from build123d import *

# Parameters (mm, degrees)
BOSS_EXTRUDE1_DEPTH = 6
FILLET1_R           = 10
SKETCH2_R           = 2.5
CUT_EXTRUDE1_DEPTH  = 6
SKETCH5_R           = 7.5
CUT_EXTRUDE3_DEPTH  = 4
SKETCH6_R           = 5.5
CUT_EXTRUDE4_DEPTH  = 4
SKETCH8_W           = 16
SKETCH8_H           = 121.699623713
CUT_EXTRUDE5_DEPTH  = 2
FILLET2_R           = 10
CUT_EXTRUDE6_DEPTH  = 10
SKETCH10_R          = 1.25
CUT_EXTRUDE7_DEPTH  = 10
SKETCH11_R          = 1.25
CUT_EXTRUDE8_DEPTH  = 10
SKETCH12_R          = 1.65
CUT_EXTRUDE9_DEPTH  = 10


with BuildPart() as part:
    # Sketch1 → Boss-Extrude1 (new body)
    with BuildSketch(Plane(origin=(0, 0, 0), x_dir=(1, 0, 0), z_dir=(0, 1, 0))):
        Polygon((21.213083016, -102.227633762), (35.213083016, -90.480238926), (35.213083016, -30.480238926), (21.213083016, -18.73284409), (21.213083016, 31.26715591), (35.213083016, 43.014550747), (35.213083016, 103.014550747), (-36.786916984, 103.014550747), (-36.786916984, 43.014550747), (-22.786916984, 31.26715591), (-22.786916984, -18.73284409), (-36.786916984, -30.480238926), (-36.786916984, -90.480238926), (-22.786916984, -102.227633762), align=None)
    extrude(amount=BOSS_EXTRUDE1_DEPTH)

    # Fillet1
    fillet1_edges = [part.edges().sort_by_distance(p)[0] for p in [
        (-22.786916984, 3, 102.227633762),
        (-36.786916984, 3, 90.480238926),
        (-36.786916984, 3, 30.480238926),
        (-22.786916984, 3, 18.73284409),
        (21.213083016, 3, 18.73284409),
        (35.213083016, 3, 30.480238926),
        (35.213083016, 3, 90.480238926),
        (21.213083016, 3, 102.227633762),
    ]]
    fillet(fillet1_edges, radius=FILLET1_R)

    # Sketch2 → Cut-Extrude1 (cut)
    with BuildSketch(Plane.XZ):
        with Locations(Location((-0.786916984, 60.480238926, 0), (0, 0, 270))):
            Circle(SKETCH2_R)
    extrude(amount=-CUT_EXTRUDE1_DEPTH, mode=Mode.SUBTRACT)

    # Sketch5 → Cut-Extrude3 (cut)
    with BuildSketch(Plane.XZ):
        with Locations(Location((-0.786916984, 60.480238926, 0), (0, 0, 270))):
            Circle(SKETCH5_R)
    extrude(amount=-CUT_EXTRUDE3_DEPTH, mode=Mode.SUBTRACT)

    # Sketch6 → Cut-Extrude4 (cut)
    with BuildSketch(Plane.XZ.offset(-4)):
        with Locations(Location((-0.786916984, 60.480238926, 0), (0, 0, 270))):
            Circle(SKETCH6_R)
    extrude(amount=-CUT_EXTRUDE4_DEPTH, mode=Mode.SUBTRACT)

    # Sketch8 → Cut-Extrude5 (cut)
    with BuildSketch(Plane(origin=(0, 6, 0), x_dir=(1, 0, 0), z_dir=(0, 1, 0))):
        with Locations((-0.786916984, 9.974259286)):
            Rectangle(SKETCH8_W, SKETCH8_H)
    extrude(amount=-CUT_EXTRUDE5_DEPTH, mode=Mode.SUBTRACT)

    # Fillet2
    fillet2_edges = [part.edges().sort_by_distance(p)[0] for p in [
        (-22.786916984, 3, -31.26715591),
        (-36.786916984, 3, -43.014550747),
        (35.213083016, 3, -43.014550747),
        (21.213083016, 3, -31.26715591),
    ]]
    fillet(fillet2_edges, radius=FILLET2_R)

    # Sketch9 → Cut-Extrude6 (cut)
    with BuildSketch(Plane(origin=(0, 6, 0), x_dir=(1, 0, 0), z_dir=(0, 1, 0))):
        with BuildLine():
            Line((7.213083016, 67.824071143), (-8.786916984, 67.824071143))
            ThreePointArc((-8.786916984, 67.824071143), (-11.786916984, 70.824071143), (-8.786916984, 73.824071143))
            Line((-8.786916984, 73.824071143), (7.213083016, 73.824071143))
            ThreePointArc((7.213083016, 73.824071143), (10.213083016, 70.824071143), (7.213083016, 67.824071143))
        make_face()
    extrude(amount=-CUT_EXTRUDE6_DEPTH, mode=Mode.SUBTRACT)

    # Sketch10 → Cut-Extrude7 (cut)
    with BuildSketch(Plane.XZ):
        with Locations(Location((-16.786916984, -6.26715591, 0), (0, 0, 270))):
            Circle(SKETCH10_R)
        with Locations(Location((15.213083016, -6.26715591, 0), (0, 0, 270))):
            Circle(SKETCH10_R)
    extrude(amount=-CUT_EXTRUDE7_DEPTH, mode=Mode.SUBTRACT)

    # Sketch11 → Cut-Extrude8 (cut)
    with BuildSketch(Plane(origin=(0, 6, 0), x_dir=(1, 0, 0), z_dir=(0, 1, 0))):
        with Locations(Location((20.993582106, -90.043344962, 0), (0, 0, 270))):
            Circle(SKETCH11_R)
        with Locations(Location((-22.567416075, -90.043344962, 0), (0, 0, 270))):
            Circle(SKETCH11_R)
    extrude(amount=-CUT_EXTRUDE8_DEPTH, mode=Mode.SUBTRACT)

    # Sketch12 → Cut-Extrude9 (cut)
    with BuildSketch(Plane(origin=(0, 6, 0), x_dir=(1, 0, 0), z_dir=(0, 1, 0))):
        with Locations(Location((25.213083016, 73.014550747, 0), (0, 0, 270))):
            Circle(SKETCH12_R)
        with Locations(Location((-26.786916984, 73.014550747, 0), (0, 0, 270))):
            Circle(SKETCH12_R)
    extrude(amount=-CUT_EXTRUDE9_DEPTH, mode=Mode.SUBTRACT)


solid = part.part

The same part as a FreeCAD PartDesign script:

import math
import FreeCAD as App
import Part
import Sketcher
from FreeCAD import Vector
Q = App.Units.Quantity


def edges_at(feature, points):
    """Names of the edges that pass closest to the given points."""
    edges = feature.Shape.Edges
    near = lambda p: min(range(len(edges)), key=lambda i: edges[i].distToShape(Part.Vertex(*p))[0])
    return sorted({f"Edge{near(p) + 1}" for p in points})

doc = App.newDocument("Part")
body = doc.addObject("PartDesign::Body", "Body")

# Sketch on XZ plane
sketch1 = body.newObject("Sketcher::SketchObject", "Sketch")
sketch1.AttachmentSupport = (doc.getObject("XZ_Plane"), [""])
sketch1.MapMode = "FlatFace"
sketch1.addGeometry([
    Part.LineSegment(Vector(21, 102, 0), Vector(35, 90, 0)),  # 0
    Part.LineSegment(Vector(35, 90, 0), Vector(35, 30, 0)),  # 1
    Part.LineSegment(Vector(35, 30, 0), Vector(21, 19, 0)),  # 2
    Part.LineSegment(Vector(21, 19, 0), Vector(21, -31, 0)),  # 3
    Part.LineSegment(Vector(21, -31, 0), Vector(35, -43, 0)),  # 4
    Part.LineSegment(Vector(35, -43, 0), Vector(35, -103, 0)),  # 5
    Part.LineSegment(Vector(35, -103, 0), Vector(-37, -103, 0)),  # 6
    Part.LineSegment(Vector(-37, -103, 0), Vector(-37, -43, 0)),  # 7
    Part.LineSegment(Vector(-37, -43, 0), Vector(-23, -31, 0)),  # 8
    Part.LineSegment(Vector(-23, -31, 0), Vector(-23, 19, 0)),  # 9
    Part.LineSegment(Vector(-23, 19, 0), Vector(-37, 30, 0)),  # 10
    Part.LineSegment(Vector(-37, 30, 0), Vector(-37, 90, 0)),  # 11
    Part.LineSegment(Vector(-37, 90, 0), Vector(-23, 102, 0)),  # 12
    Part.LineSegment(Vector(-23, 102, 0), Vector(21, 102, 0)),  # 13
], False)
sketch1.addConstraint([
    Sketcher.Constraint("Coincident", 0, 2, 1, 1),
    Sketcher.Constraint("Coincident", 1, 2, 2, 1),
    Sketcher.Constraint("Coincident", 2, 2, 3, 1),
    Sketcher.Constraint("Coincident", 3, 2, 4, 1),
    Sketcher.Constraint("Coincident", 4, 2, 5, 1),
    Sketcher.Constraint("Coincident", 5, 2, 6, 1),
    Sketcher.Constraint("Coincident", 6, 2, 7, 1),
    Sketcher.Constraint("Coincident", 7, 2, 8, 1),
    Sketcher.Constraint("Coincident", 8, 2, 9, 1),
    Sketcher.Constraint("Coincident", 9, 2, 10, 1),
    Sketcher.Constraint("Coincident", 10, 2, 11, 1),
    Sketcher.Constraint("Coincident", 11, 2, 12, 1),
    Sketcher.Constraint("Coincident", 12, 2, 13, 1),
    Sketcher.Constraint("Coincident", 13, 2, 0, 1),
    Sketcher.Constraint("Vertical", 1),
    Sketcher.Constraint("Vertical", 3),
    Sketcher.Constraint("Vertical", 5),
    Sketcher.Constraint("Horizontal", 6),
    Sketcher.Constraint("Vertical", 7),
    Sketcher.Constraint("Vertical", 9),
    Sketcher.Constraint("Vertical", 11),
    Sketcher.Constraint("Horizontal", 13),
    Sketcher.Constraint("Parallel", 0, 4),
    Sketcher.Constraint("Parallel", 2, 8),
    Sketcher.Constraint("Parallel", 4, 10),
    Sketcher.Constraint("Parallel", 8, 12),
    Sketcher.Constraint("Horizontal", 4, 2, 7, 2),
    Sketcher.Constraint("Horizontal", 3, 2, 8, 2),
    Sketcher.Constraint("Horizontal", 2, 2, 9, 2),
    Sketcher.Constraint("Horizontal", 1, 2, 10, 2),
    Sketcher.Constraint("Horizontal", 0, 2, 11, 2),
    Sketcher.Constraint("Vertical", 1, 2, 4, 2),
    Sketcher.Constraint("Vertical", 7, 2, 10, 2),
    Sketcher.Constraint("Vertical", 9, 2, 12, 2),
    Sketcher.Constraint("Equal", 1, 5),
    Sketcher.Constraint("DistanceX", 6, 2, 6, 1, 72.0),
    Sketcher.Constraint("DistanceX", 13, 1, 13, 2, 44.0),
    Sketcher.Constraint("DistanceY", 1, 2, 1, 1, 60.0),
    Sketcher.Constraint("DistanceY", 3, 2, 3, 1, 50.0),
    Sketcher.Constraint("Angle", 0, Q("-40 deg")),
    Sketcher.Constraint("DistanceY", -1, 1, 0, 2, 90.480239),
    Sketcher.Constraint("DistanceX", -1, 1, 0, 2, 35.213083),
])
pad1 = body.newObject("PartDesign::Pad", "Pad")
pad1.Profile = sketch1
pad1.Length = 6
pad1.Reversed = True
doc.recompute()

fillet = body.newObject("PartDesign::Fillet", "Fillet")
fillet.Base = (pad1, edges_at(pad1, [
    (-22.787, 3, 102.228),
    (-36.787, 3, 90.48),
    (-36.787, 3, 30.48),
    (-22.787, 3, 18.733),
    (21.213, 3, 18.733),
    (35.213, 3, 30.48),
    (35.213, 3, 90.48),
    (21.213, 3, 102.228),
]))
fillet.Radius = 10

# Sketch on XZ plane
sketch2 = body.newObject("Sketcher::SketchObject", "Sketch001")
sketch2.AttachmentSupport = (doc.getObject("XZ_Plane"), [""])
sketch2.MapMode = "FlatFace"
sketch2.addGeometry(Part.Circle(Vector(-0.8, 60.5, 0), Vector(0, 0, 1), 2.5), False)
sketch2.addConstraint([
    Sketcher.Constraint("Diameter", 0, 5.0),
    Sketcher.Constraint("DistanceY", -1, 1, 0, 3, 60.480239),
    Sketcher.Constraint("DistanceX", 0, 3, -1, 1, 0.786917),
])
pocket1 = body.newObject("PartDesign::Pocket", "Pocket")
pocket1.Profile = sketch2
pocket1.Length = 6

# Sketch on XZ plane
sketch3 = body.newObject("Sketcher::SketchObject", "Sketch002")
sketch3.AttachmentSupport = (doc.getObject("XZ_Plane"), [""])
sketch3.MapMode = "FlatFace"
sketch3.addGeometry(Part.Circle(Vector(-1, 60, 0), Vector(0, 0, 1), 8), False)
sketch3.addConstraint([
    Sketcher.Constraint("Diameter", 0, 15.0),
    Sketcher.Constraint("DistanceY", -1, 1, 0, 3, 60.480239),
    Sketcher.Constraint("DistanceX", 0, 3, -1, 1, 0.786917),
])
pocket2 = body.newObject("PartDesign::Pocket", "Pocket001")
pocket2.Profile = sketch3
pocket2.Length = 4

# Sketch on XZ plane
sketch4 = body.newObject("Sketcher::SketchObject", "Sketch003")
sketch4.AttachmentSupport = (doc.getObject("XZ_Plane"), [""])
sketch4.MapMode = "FlatFace"
sketch4.AttachmentOffset = App.Placement(Vector(0, 0, -4), App.Rotation())
sketch4.addGeometry(Part.Circle(Vector(-1, 60, 0), Vector(0, 0, 1), 6), False)
sketch4.addConstraint([
    Sketcher.Constraint("Diameter", 0, 11.0),
    Sketcher.Constraint("DistanceY", -1, 1, 0, 3, 60.480239),
    Sketcher.Constraint("DistanceX", 0, 3, -1, 1, 0.786917),
])
pocket3 = body.newObject("PartDesign::Pocket", "Pocket002")
pocket3.Profile = sketch4
pocket3.Length = 4

# Sketch on XZ plane
sketch5 = body.newObject("Sketcher::SketchObject", "Sketch004")
sketch5.AttachmentSupport = (doc.getObject("XZ_Plane"), [""])
sketch5.MapMode = "FlatFace"
sketch5.AttachmentOffset = App.Placement(Vector(0, 0, -6), App.Rotation())
sketch5.addGeometry([
    Part.LineSegment(Vector(-9, -71, 0), Vector(-9, 51, 0)),
    Part.LineSegment(Vector(-9, 51, 0), Vector(7, 51, 0)),
    Part.LineSegment(Vector(7, 51, 0), Vector(7, -71, 0)),
    Part.LineSegment(Vector(7, -71, 0), Vector(-9, -71, 0)),
], False)
sketch5.addConstraint([
    Sketcher.Constraint("Coincident", 0, 2, 1, 1),
    Sketcher.Constraint("Coincident", 1, 2, 2, 1),
    Sketcher.Constraint("Coincident", 2, 2, 3, 1),
    Sketcher.Constraint("Coincident", 3, 2, 0, 1),
    Sketcher.Constraint("Vertical", 0),
    Sketcher.Constraint("Horizontal", 1),
    Sketcher.Constraint("Vertical", 2),
    Sketcher.Constraint("Horizontal", 3),
    Sketcher.Constraint("DistanceX", 1, 1, 1, 2, 16.0),
    Sketcher.Constraint("DistanceY", 0, 1, 0, 2, 121.699624),
    Sketcher.Constraint("DistanceY", 2, 2, -1, 1, 70.824071),
    Sketcher.Constraint("DistanceX", 0, 2, -1, 1, 8.786917),
])
pocket4 = body.newObject("PartDesign::Pocket", "Pocket003")
pocket4.Profile = sketch5
pocket4.Length = 2
pocket4.Reversed = True
doc.recompute()

fillet2 = body.newObject("PartDesign::Fillet", "Fillet001")
fillet2.Base = (pocket4, edges_at(pocket4, [
    (-22.787, 3, -31.267),
    (-36.787, 3, -43.015),
    (35.213, 3, -43.015),
    (21.213, 3, -31.267),
]))
fillet2.Radius = 10

# Sketch on XZ plane
sketch6 = body.newObject("Sketcher::SketchObject", "Sketch005")
sketch6.AttachmentSupport = (doc.getObject("XZ_Plane"), [""])
sketch6.MapMode = "FlatFace"
sketch6.AttachmentOffset = App.Placement(Vector(0, 0, -6), App.Rotation())
sketch6.addGeometry([
    Part.LineSegment(Vector(-8.8, -67.8, 0), Vector(7.2, -67.8, 0)),
    Part.ArcOfCircle(Part.Circle(Vector(7.2, -70.8, 0), Vector(0, 0, 1), 3), math.radians(-90), math.radians(90)),
    Part.LineSegment(Vector(7.2, -73.8, 0), Vector(-8.8, -73.8, 0)),
    Part.ArcOfCircle(Part.Circle(Vector(-8.8, -70.8, 0), Vector(0, 0, 1), 3), math.radians(90), math.radians(270)),
], False)
sketch6.addConstraint([
    Sketcher.Constraint("Tangent", 0, 2, 1, 2),
    Sketcher.Constraint("Tangent", 1, 1, 2, 1),
    Sketcher.Constraint("Tangent", 2, 2, 3, 2),
    Sketcher.Constraint("Tangent", 3, 1, 0, 1),
    Sketcher.Constraint("Horizontal", 0),
    Sketcher.Constraint("Horizontal", 2),
    Sketcher.Constraint("Radius", 1, 3.0),
    Sketcher.Constraint("DistanceX", 0, 1, 0, 2, 16.0),
    Sketcher.Constraint("DistanceY", 1, 3, -1, 1, 70.824071),
    Sketcher.Constraint("DistanceX", -1, 1, 1, 3, 7.213083),
])
pocket5 = body.newObject("PartDesign::Pocket", "Pocket004")
pocket5.Profile = sketch6
pocket5.Length = 10
pocket5.Reversed = True

# Sketch on XZ plane
sketch7 = body.newObject("Sketcher::SketchObject", "Sketch006")
sketch7.AttachmentSupport = (doc.getObject("XZ_Plane"), [""])
sketch7.MapMode = "FlatFace"
sketch7.addGeometry([
    Part.Circle(Vector(-16.8, -6.3, 0), Vector(0, 0, 1), 1.2),
    Part.Circle(Vector(15.2, -6.3, 0), Vector(0, 0, 1), 1.2),
], False)
sketch7.addConstraint([
    Sketcher.Constraint("Equal", 0, 1),
    Sketcher.Constraint("Horizontal", 0, 3, 1, 3),
    Sketcher.Constraint("Diameter", 0, 2.5),
    Sketcher.Constraint("DistanceX", 0, 3, 1, 3, 32.0),
    Sketcher.Constraint("DistanceX", 0, 3, -1, 1, 16.786917),
    Sketcher.Constraint("DistanceY", 0, 3, -1, 1, 6.267156),
])
pocket6 = body.newObject("PartDesign::Pocket", "Pocket005")
pocket6.Profile = sketch7
pocket6.Length = 10

# Sketch on XZ plane
sketch8 = body.newObject("Sketcher::SketchObject", "Sketch007")
sketch8.AttachmentSupport = (doc.getObject("XZ_Plane"), [""])
sketch8.MapMode = "FlatFace"
sketch8.AttachmentOffset = App.Placement(Vector(0, 0, -6), App.Rotation())
sketch8.addGeometry([
    Part.Circle(Vector(21, 90, 0), Vector(0, 0, 1), 1.2),
    Part.Circle(Vector(-22.6, 90, 0), Vector(0, 0, 1), 1.2),
], False)
sketch8.addConstraint([
    Sketcher.Constraint("Equal", 0, 1),
    Sketcher.Constraint("Horizontal", 0, 3, 1, 3),
    Sketcher.Constraint("Diameter", 0, 2.5),
    Sketcher.Constraint("DistanceX", 1, 3, 0, 3, 43.560998),
    Sketcher.Constraint("DistanceX", -1, 1, 0, 3, 20.993582),
    Sketcher.Constraint("DistanceY", -1, 1, 0, 3, 90.043345),
])
pocket7 = body.newObject("PartDesign::Pocket", "Pocket006")
pocket7.Profile = sketch8
pocket7.Length = 10
pocket7.Reversed = True

# Sketch on XZ plane
sketch9 = body.newObject("Sketcher::SketchObject", "Sketch008")
sketch9.AttachmentSupport = (doc.getObject("XZ_Plane"), [""])
sketch9.MapMode = "FlatFace"
sketch9.AttachmentOffset = App.Placement(Vector(0, 0, -6), App.Rotation())
sketch9.addGeometry([
    Part.Circle(Vector(25.2, -73, 0), Vector(0, 0, 1), 1.6),
    Part.Circle(Vector(-26.8, -73, 0), Vector(0, 0, 1), 1.6),
], False)
sketch9.addConstraint([
    Sketcher.Constraint("Equal", 0, 1),
    Sketcher.Constraint("Horizontal", 0, 3, 1, 3),
    Sketcher.Constraint("Diameter", 0, 3.3),
    Sketcher.Constraint("DistanceX", 1, 3, 0, 3, 52.0),
    Sketcher.Constraint("DistanceY", 0, 3, -1, 1, 73.014551),
    Sketcher.Constraint("DistanceX", -1, 1, 0, 3, 25.213083),
])
pocket8 = body.newObject("PartDesign::Pocket", "Pocket007")
pocket8.Profile = sketch9
pocket8.Length = 10
pocket8.Reversed = True

doc.recompute()
